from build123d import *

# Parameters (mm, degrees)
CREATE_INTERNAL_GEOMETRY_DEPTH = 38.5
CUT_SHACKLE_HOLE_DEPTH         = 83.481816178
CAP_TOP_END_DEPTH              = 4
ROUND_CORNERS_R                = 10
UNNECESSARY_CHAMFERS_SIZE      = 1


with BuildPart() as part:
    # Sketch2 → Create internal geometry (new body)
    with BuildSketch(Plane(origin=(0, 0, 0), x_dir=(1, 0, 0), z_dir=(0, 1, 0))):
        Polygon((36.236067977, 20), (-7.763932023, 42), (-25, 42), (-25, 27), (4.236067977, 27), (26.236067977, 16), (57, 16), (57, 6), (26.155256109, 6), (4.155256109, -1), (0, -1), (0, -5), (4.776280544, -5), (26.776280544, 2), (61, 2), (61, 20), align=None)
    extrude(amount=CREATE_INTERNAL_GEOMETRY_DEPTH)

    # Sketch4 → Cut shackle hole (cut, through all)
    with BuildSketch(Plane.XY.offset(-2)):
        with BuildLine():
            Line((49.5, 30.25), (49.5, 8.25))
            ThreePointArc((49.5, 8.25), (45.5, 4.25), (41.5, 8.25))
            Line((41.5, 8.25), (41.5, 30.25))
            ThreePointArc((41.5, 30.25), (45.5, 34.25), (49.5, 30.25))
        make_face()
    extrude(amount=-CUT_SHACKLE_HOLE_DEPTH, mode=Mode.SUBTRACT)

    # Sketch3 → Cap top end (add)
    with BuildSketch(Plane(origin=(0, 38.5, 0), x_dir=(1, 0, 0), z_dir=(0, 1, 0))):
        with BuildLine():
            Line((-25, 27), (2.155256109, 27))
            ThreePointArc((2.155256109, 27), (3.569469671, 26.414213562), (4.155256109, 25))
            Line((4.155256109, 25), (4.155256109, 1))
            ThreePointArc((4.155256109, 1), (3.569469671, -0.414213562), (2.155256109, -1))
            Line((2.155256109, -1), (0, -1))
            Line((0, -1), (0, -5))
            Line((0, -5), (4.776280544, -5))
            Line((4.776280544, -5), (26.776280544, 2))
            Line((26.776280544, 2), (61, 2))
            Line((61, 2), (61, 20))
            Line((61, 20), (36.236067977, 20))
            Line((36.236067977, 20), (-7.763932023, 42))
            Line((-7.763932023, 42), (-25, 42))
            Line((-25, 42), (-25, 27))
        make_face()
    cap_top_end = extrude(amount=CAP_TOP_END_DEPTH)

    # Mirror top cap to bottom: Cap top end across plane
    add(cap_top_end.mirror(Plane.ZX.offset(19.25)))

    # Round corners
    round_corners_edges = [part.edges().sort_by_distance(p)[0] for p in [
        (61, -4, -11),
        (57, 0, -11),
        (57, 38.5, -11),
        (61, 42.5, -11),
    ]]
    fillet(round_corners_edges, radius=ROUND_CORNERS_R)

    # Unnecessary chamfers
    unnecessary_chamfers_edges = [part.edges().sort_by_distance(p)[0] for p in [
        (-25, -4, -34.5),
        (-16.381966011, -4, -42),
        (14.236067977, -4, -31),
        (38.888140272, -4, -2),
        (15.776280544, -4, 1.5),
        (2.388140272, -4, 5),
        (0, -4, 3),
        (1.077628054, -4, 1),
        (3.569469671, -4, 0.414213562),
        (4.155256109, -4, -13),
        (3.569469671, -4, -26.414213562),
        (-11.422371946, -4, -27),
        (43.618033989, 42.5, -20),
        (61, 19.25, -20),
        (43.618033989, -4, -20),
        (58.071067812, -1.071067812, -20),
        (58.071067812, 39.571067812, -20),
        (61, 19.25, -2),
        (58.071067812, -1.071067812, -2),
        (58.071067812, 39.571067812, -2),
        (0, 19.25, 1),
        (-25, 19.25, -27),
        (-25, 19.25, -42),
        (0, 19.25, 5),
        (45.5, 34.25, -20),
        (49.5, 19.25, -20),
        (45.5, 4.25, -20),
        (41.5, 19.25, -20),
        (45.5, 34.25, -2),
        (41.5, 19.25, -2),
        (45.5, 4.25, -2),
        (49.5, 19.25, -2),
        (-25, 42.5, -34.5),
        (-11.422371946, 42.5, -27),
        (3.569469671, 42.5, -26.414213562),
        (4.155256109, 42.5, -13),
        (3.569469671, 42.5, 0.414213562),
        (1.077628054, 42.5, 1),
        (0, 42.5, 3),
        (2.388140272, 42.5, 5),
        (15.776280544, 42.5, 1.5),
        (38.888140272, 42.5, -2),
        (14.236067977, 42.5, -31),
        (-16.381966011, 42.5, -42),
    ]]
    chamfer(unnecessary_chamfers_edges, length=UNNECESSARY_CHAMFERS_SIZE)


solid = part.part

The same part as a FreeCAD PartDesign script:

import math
import FreeCAD as App
import Part
import Sketcher
from FreeCAD import Vector
Q = App.Units.Quantity


def edges_at(feature, points):
    """Names of the edges that pass closest to the given points."""
    edges = feature.Shape.Edges
    near = lambda p: min(range(len(edges)), key=lambda i: edges[i].distToShape(Part.Vertex(*p))[0])
    return sorted({f"Edge{near(p) + 1}" for p in points})


def add_polygon(sketch, points):
    """Adds a closed chain of lines whose ends are joined by coincident constraints."""
    first, n = sketch.GeometryCount, len(points)
    for a, b in zip(points, points[1:] + points[:1]):
        sketch.addGeometry(Part.LineSegment(App.Vector(*a, 0), App.Vector(*b, 0)), False)
    for i in range(n):
        sketch.addConstraint(Sketcher.Constraint("Coincident", first + i, 2, first + (i + 1) % n, 1))

doc = App.newDocument("Part")
body = doc.addObject("PartDesign::Body", "Body")

# Sketch on XZ plane
sketch1 = body.newObject("Sketcher::SketchObject", "Sketch")
sketch1.AttachmentSupport = (doc.getObject("XZ_Plane"), [""])
sketch1.MapMode = "FlatFace"
add_polygon(sketch1, [(36.2, -20), (-7.8, -42), (-25, -42), (-25, -27), (4.2, -27), (26.2, -16), (57, -16), (57, -6), (26.2, -6), (4.2, 1), (0, 1), (0, 5), (4.8, 5), (26.8, -2), (61, -2), (61, -20)])  # lines 0-15
sketch1.addConstraint([
    Sketcher.Constraint("Horizontal", 1),
    Sketcher.Constraint("Vertical", 2),
    Sketcher.Constraint("Horizontal", 3),
    Sketcher.Constraint("Horizontal", 5),
    Sketcher.Constraint("Vertical", 6),
    Sketcher.Constraint("Horizontal", 7),
    Sketcher.Constraint("Horizontal", 9),
    Sketcher.Constraint("Vertical", 10),
    Sketcher.Constraint("Horizontal", 11),
    Sketcher.Constraint("Horizontal", 13),
    Sketcher.Constraint("Vertical", 14),
    Sketcher.Constraint("Horizontal", 15),
    Sketcher.Constraint("PointOnObject", 9, 2, -2),
    Sketcher.Constraint("Parallel", 0, 4),
    Sketcher.Constraint("Parallel", 8, 12),
    Sketcher.Constraint("Equal", 8, 12),
    Sketcher.Constraint("DistanceY", 2, 1, 2, 2, Q("15 mm")),
    Sketcher.Constraint("DistanceY", 6, 1, 6, 2, Q("10 mm")),
    Sketcher.Constraint("DistanceY", 10, 1, 10, 2, Q("4 mm")),
    Sketcher.Constraint("DistanceY", 14, 2, 14, 1, Q("18 mm")),
    Sketcher.Constraint("DistanceY", 0, 2, -1, 1, Q("42 mm")),
    Sketcher.Constraint("DistanceX", 1, 2, -1, 1, Q("25 mm")),
    Sketcher.Constraint("DistanceY", 4, 2, -1, 1, Q("16 mm")),
    Sketcher.Constraint("DistanceX", -1, 1, 5, 2, Q("57 mm")),
    Sketcher.Constraint("DistanceY", -1, 1, 8, 2, Q("1 mm")),
    Sketcher.Constraint("DistanceX", -1, 1, 13, 2, Q("61 mm")),
    Sketcher.Constraint("DistanceX", 0, 2, 3, 2, Q("12 mm")),
    Sketcher.Constraint("DistanceX", 3, 2, 4, 2, Q("22 mm")),
    Sketcher.Constraint("DistanceX", 8, 2, 7, 2, Q("22 mm")),
    Sketcher.Constraint("DistanceX", 11, 1, 11, 2, Q("4.776281 mm")),
    Sketcher.Constraint("DistanceX", 1, 2, 1, 1, Q("17.236068 mm")),
    Sketcher.Constraint("DistanceX", 7, 2, 7, 1, Q("30.844744 mm")),
])
pad1 = body.newObject("PartDesign::Pad", "Pad")
pad1.Profile = sketch1
pad1.Length = 38.5
pad1.Reversed = True

# Sketch on XY plane
sketch2 = body.newObject("Sketcher::SketchObject", "Sketch001")
sketch2.AttachmentSupport = (doc.getObject("XY_Plane"), [""])
sketch2.MapMode = "FlatFace"
sketch2.AttachmentOffset = App.Placement(Vector(0, 0, -2), App.Rotation())
sketch2.addGeometry([
    Part.LineSegment(Vector(49.5, 8.2, 0), Vector(49.5, 30.2, 0)),
    Part.ArcOfCircle(Part.Circle(Vector(45.5, 30.2, 0), Vector(0, 0, 1), 4), math.radians(0), math.radians(180)),
    Part.LineSegment(Vector(41.5, 30.2, 0), Vector(41.5, 8.2, 0)),
    Part.ArcOfCircle(Part.Circle(Vector(45.5, 8.2, 0), Vector(0, 0, 1), 4), math.radians(180), math.radians(360)),
], False)
sketch2.addConstraint([
    Sketcher.Constraint("Tangent", 0, 2, 1, 1),
    Sketcher.Constraint("Tangent", 1, 2, 2, 1),
    Sketcher.Constraint("Tangent", 2, 2, 3, 1),
    Sketcher.Constraint("Tangent", 3, 2, 0, 1),
    Sketcher.Constraint("Vertical", 0),
    Sketcher.Constraint("Vertical", 2),
    Sketcher.Constraint("Radius", 1, Q("4 mm")),
    Sketcher.Constraint("DistanceY", 0, 1, 0, 2, Q("22 mm")),
    Sketcher.Constraint("DistanceX", -1, 1, 1, 3, Q("45.5 mm")),
    Sketcher.Constraint("DistanceY", -1, 1, 1, 3, Q("30.25 mm")),
])
pocket1 = body.newObject("PartDesign::Pocket", "Pocket")
pocket1.Profile = sketch2
pocket1.Type = "ThroughAll"

# Sketch on XZ plane
sketch3 = body.newObject("Sketcher::SketchObject", "Sketch002")
sketch3.AttachmentSupport = (doc.getObject("XZ_Plane"), [""])
sketch3.MapMode = "FlatFace"
sketch3.AttachmentOffset = App.Placement(Vector(0, 0, -38.5), App.Rotation())
sketch3.addGeometry([
    Part.LineSegment(Vector(-25, -27, 0), Vector(2.2, -27, 0)),  # 0
    Part.ArcOfCircle(Part.Circle(Vector(2.2, -25, 0), Vector(0, 0, 1), 2), math.radians(-90), math.radians(0)),  # 1
    Part.LineSegment(Vector(4.2, -25, 0), Vector(4.2, -1, 0)),  # 2
    Part.ArcOfCircle(Part.Circle(Vector(2.2, -1, 0), Vector(0, 0, 1), 2), math.radians(0), math.radians(90)),  # 3
    Part.LineSegment(Vector(2.2, 1, 0), Vector(0, 1, 0)),  # 4
    Part.LineSegment(Vector(0, 1, 0), Vector(0, 5, 0)),  # 5
    Part.LineSegment(Vector(0, 5, 0), Vector(4.8, 5, 0)),  # 6
    Part.LineSegment(Vector(4.8, 5, 0), Vector(26.8, -2, 0)),  # 7
    Part.LineSegment(Vector(26.8, -2, 0), Vector(61, -2, 0)),  # 8
    Part.LineSegment(Vector(61, -2, 0), Vector(61, -20, 0)),  # 9
    Part.LineSegment(Vector(61, -20, 0), Vector(36.2, -20, 0)),  # 10
    Part.LineSegment(Vector(36.2, -20, 0), Vector(-7.8, -42, 0)),  # 11
    Part.LineSegment(Vector(-7.8, -42, 0), Vector(-25, -42, 0)),  # 12
    Part.LineSegment(Vector(-25, -42, 0), Vector(-25, -27, 0)),  # 13
], False)
sketch3.addConstraint([
    Sketcher.Constraint("Tangent", 0, 2, 1, 1),
    Sketcher.Constraint("Tangent", 1, 2, 2, 1),
    Sketcher.Constraint("Tangent", 2, 2, 3, 1),
    Sketcher.Constraint("Tangent", 3, 2, 4, 1),
    Sketcher.Constraint("Coincident", 4, 2, 5, 1),
    Sketcher.Constraint("Coincident", 5, 2, 6, 1),
    Sketcher.Constraint("Coincident", 6, 2, 7, 1),
    Sketcher.Constraint("Coincident", 7, 2, 8, 1),
    Sketcher.Constraint("Coincident", 8, 2, 9, 1),
    Sketcher.Constraint("Coincident", 9, 2, 10, 1),
    Sketcher.Constraint("Coincident", 10, 2, 11, 1),
    Sketcher.Constraint("Coincident", 11, 2, 12, 1),
    Sketcher.Constraint("Coincident", 12, 2, 13, 1),
    Sketcher.Constraint("Coincident", 13, 2, 0, 1),
    Sketcher.Constraint("Horizontal", 0),
    Sketcher.Constraint("Vertical", 2),
    Sketcher.Constraint("Horizontal", 4),
    Sketcher.Constraint("Vertical", 5),
    Sketcher.Constraint("Horizontal", 6),
    Sketcher.Constraint("Horizontal", 8),
    Sketcher.Constraint("Vertical", 9),
    Sketcher.Constraint("Horizontal", 10),
    Sketcher.Constraint("Horizontal", 12),
    Sketcher.Constraint("Vertical", 13),
    Sketcher.Constraint("Equal", 1, 3),
    Sketcher.Constraint("PointOnObject", 4, 2, -2),
    Sketcher.Constraint("Radius", 1, Q("2 mm")),
    Sketcher.Constraint("DistanceY", 2, 1, 2, 2, Q("24 mm")),
    Sketcher.Constraint("DistanceY", 5, 1, 5, 2, Q("4 mm")),
    Sketcher.Constraint("DistanceY", 9, 2, 9, 1, Q("18 mm")),
    Sketcher.Constraint("DistanceY", 13, 1, 13, 2, Q("15 mm")),
    Sketcher.Constraint("DistanceY", 1, 3, -1, 1, Q("25 mm")),
    Sketcher.Constraint("DistanceY", 7, 2, -1, 1, Q("2 mm")),
    Sketcher.Constraint("DistanceX", -1, 1, 8, 2, Q("61 mm")),
    Sketcher.Constraint("DistanceX", 12, 2, -1, 1, Q("25 mm")),
    Sketcher.Constraint("DistanceX", 6, 2, 7, 2, Q("22 mm")),
    Sketcher.Constraint("DistanceX", 6, 1, 6, 2, Q("4.776281 mm")),
    Sketcher.Constraint("DistanceX", 0, 1, 0, 2, Q("27.155256 mm")),
    Sketcher.Constraint("DistanceX", 10, 2, 10, 1, Q("24.763932 mm")),
    Sketcher.Constraint("DistanceX", 12, 2, 12, 1, Q("17.236068 mm")),
])
pad2 = body.newObject("PartDesign::Pad", "Pad001")
pad2.Profile = sketch3
pad2.Length = 4
pad2.Reversed = True
doc.recompute()

datumplane = body.newObject("PartDesign::Plane", "DatumPlane")
datumplane.AttachmentSupport = (doc.getObject("XZ_Plane"), [""])
datumplane.MapMode = "FlatFace"
datumplane.AttachmentOffset = App.Placement(Vector(0, 0, -19.25), App.Rotation())
mirrored = body.newObject("PartDesign::Mirrored", "Mirrored")
mirrored.Originals = [pad2]
mirrored.MirrorPlane = (datumplane, [""])
body.Tip = mirrored
doc.recompute()

fillet = body.newObject("PartDesign::Fillet", "Fillet")
fillet.Base = (mirrored, edges_at(mirrored, [
    (61, -4, -11),
    (57, 0, -11),
    (57, 38.5, -11),
    (61, 42.5, -11),
]))
fillet.Radius = 10
doc.recompute()

chamfer = body.newObject("PartDesign::Chamfer", "Chamfer")
chamfer.Base = (fillet, edges_at(fillet, [
    (-25, -4, -34.5),
    (-16.382, -4, -42),
    (14.236, -4, -31),
    (38.888, -4, -2),
    (15.776, -4, 1.5),
    (2.388, -4, 5),
    (0, -4, 3),
    (1.078, -4, 1),
    (3.569, -4, 0.414),
    (4.155, -4, -13),
    (3.569, -4, -26.414),
    (-11.422, -4, -27),
    (43.618, 42.5, -20),
    (61, 19.25, -20),
    (43.618, -4, -20),
    (58.071, -1.071, -20),
    (58.071, 39.571, -20),
    (61, 19.25, -2),
    (58.071, -1.071, -2),
    (58.071, 39.571, -2),
    (0, 19.25, 1),
    (-25, 19.25, -27),
    (-25, 19.25, -42),
    (0, 19.25, 5),
    (45.5, 34.25, -20),
    (49.5, 19.25, -20),
    (45.5, 4.25, -20),
    (41.5, 19.25, -20),
    (45.5, 34.25, -2),
    (41.5, 19.25, -2),
    (45.5, 4.25, -2),
    (49.5, 19.25, -2),
    (-25, 42.5, -34.5),
    (-11.422, 42.5, -27),
    (3.569, 42.5, -26.414),
    (4.155, 42.5, -13),
    (3.569, 42.5, 0.414),
    (1.078, 42.5, 1),
    (0, 42.5, 3),
    (2.388, 42.5, 5),
    (15.776, 42.5, 1.5),
    (38.888, 42.5, -2),
    (14.236, 42.5, -31),
    (-16.382, 42.5, -42),
]))
chamfer.Size = 1

doc.recompute()
